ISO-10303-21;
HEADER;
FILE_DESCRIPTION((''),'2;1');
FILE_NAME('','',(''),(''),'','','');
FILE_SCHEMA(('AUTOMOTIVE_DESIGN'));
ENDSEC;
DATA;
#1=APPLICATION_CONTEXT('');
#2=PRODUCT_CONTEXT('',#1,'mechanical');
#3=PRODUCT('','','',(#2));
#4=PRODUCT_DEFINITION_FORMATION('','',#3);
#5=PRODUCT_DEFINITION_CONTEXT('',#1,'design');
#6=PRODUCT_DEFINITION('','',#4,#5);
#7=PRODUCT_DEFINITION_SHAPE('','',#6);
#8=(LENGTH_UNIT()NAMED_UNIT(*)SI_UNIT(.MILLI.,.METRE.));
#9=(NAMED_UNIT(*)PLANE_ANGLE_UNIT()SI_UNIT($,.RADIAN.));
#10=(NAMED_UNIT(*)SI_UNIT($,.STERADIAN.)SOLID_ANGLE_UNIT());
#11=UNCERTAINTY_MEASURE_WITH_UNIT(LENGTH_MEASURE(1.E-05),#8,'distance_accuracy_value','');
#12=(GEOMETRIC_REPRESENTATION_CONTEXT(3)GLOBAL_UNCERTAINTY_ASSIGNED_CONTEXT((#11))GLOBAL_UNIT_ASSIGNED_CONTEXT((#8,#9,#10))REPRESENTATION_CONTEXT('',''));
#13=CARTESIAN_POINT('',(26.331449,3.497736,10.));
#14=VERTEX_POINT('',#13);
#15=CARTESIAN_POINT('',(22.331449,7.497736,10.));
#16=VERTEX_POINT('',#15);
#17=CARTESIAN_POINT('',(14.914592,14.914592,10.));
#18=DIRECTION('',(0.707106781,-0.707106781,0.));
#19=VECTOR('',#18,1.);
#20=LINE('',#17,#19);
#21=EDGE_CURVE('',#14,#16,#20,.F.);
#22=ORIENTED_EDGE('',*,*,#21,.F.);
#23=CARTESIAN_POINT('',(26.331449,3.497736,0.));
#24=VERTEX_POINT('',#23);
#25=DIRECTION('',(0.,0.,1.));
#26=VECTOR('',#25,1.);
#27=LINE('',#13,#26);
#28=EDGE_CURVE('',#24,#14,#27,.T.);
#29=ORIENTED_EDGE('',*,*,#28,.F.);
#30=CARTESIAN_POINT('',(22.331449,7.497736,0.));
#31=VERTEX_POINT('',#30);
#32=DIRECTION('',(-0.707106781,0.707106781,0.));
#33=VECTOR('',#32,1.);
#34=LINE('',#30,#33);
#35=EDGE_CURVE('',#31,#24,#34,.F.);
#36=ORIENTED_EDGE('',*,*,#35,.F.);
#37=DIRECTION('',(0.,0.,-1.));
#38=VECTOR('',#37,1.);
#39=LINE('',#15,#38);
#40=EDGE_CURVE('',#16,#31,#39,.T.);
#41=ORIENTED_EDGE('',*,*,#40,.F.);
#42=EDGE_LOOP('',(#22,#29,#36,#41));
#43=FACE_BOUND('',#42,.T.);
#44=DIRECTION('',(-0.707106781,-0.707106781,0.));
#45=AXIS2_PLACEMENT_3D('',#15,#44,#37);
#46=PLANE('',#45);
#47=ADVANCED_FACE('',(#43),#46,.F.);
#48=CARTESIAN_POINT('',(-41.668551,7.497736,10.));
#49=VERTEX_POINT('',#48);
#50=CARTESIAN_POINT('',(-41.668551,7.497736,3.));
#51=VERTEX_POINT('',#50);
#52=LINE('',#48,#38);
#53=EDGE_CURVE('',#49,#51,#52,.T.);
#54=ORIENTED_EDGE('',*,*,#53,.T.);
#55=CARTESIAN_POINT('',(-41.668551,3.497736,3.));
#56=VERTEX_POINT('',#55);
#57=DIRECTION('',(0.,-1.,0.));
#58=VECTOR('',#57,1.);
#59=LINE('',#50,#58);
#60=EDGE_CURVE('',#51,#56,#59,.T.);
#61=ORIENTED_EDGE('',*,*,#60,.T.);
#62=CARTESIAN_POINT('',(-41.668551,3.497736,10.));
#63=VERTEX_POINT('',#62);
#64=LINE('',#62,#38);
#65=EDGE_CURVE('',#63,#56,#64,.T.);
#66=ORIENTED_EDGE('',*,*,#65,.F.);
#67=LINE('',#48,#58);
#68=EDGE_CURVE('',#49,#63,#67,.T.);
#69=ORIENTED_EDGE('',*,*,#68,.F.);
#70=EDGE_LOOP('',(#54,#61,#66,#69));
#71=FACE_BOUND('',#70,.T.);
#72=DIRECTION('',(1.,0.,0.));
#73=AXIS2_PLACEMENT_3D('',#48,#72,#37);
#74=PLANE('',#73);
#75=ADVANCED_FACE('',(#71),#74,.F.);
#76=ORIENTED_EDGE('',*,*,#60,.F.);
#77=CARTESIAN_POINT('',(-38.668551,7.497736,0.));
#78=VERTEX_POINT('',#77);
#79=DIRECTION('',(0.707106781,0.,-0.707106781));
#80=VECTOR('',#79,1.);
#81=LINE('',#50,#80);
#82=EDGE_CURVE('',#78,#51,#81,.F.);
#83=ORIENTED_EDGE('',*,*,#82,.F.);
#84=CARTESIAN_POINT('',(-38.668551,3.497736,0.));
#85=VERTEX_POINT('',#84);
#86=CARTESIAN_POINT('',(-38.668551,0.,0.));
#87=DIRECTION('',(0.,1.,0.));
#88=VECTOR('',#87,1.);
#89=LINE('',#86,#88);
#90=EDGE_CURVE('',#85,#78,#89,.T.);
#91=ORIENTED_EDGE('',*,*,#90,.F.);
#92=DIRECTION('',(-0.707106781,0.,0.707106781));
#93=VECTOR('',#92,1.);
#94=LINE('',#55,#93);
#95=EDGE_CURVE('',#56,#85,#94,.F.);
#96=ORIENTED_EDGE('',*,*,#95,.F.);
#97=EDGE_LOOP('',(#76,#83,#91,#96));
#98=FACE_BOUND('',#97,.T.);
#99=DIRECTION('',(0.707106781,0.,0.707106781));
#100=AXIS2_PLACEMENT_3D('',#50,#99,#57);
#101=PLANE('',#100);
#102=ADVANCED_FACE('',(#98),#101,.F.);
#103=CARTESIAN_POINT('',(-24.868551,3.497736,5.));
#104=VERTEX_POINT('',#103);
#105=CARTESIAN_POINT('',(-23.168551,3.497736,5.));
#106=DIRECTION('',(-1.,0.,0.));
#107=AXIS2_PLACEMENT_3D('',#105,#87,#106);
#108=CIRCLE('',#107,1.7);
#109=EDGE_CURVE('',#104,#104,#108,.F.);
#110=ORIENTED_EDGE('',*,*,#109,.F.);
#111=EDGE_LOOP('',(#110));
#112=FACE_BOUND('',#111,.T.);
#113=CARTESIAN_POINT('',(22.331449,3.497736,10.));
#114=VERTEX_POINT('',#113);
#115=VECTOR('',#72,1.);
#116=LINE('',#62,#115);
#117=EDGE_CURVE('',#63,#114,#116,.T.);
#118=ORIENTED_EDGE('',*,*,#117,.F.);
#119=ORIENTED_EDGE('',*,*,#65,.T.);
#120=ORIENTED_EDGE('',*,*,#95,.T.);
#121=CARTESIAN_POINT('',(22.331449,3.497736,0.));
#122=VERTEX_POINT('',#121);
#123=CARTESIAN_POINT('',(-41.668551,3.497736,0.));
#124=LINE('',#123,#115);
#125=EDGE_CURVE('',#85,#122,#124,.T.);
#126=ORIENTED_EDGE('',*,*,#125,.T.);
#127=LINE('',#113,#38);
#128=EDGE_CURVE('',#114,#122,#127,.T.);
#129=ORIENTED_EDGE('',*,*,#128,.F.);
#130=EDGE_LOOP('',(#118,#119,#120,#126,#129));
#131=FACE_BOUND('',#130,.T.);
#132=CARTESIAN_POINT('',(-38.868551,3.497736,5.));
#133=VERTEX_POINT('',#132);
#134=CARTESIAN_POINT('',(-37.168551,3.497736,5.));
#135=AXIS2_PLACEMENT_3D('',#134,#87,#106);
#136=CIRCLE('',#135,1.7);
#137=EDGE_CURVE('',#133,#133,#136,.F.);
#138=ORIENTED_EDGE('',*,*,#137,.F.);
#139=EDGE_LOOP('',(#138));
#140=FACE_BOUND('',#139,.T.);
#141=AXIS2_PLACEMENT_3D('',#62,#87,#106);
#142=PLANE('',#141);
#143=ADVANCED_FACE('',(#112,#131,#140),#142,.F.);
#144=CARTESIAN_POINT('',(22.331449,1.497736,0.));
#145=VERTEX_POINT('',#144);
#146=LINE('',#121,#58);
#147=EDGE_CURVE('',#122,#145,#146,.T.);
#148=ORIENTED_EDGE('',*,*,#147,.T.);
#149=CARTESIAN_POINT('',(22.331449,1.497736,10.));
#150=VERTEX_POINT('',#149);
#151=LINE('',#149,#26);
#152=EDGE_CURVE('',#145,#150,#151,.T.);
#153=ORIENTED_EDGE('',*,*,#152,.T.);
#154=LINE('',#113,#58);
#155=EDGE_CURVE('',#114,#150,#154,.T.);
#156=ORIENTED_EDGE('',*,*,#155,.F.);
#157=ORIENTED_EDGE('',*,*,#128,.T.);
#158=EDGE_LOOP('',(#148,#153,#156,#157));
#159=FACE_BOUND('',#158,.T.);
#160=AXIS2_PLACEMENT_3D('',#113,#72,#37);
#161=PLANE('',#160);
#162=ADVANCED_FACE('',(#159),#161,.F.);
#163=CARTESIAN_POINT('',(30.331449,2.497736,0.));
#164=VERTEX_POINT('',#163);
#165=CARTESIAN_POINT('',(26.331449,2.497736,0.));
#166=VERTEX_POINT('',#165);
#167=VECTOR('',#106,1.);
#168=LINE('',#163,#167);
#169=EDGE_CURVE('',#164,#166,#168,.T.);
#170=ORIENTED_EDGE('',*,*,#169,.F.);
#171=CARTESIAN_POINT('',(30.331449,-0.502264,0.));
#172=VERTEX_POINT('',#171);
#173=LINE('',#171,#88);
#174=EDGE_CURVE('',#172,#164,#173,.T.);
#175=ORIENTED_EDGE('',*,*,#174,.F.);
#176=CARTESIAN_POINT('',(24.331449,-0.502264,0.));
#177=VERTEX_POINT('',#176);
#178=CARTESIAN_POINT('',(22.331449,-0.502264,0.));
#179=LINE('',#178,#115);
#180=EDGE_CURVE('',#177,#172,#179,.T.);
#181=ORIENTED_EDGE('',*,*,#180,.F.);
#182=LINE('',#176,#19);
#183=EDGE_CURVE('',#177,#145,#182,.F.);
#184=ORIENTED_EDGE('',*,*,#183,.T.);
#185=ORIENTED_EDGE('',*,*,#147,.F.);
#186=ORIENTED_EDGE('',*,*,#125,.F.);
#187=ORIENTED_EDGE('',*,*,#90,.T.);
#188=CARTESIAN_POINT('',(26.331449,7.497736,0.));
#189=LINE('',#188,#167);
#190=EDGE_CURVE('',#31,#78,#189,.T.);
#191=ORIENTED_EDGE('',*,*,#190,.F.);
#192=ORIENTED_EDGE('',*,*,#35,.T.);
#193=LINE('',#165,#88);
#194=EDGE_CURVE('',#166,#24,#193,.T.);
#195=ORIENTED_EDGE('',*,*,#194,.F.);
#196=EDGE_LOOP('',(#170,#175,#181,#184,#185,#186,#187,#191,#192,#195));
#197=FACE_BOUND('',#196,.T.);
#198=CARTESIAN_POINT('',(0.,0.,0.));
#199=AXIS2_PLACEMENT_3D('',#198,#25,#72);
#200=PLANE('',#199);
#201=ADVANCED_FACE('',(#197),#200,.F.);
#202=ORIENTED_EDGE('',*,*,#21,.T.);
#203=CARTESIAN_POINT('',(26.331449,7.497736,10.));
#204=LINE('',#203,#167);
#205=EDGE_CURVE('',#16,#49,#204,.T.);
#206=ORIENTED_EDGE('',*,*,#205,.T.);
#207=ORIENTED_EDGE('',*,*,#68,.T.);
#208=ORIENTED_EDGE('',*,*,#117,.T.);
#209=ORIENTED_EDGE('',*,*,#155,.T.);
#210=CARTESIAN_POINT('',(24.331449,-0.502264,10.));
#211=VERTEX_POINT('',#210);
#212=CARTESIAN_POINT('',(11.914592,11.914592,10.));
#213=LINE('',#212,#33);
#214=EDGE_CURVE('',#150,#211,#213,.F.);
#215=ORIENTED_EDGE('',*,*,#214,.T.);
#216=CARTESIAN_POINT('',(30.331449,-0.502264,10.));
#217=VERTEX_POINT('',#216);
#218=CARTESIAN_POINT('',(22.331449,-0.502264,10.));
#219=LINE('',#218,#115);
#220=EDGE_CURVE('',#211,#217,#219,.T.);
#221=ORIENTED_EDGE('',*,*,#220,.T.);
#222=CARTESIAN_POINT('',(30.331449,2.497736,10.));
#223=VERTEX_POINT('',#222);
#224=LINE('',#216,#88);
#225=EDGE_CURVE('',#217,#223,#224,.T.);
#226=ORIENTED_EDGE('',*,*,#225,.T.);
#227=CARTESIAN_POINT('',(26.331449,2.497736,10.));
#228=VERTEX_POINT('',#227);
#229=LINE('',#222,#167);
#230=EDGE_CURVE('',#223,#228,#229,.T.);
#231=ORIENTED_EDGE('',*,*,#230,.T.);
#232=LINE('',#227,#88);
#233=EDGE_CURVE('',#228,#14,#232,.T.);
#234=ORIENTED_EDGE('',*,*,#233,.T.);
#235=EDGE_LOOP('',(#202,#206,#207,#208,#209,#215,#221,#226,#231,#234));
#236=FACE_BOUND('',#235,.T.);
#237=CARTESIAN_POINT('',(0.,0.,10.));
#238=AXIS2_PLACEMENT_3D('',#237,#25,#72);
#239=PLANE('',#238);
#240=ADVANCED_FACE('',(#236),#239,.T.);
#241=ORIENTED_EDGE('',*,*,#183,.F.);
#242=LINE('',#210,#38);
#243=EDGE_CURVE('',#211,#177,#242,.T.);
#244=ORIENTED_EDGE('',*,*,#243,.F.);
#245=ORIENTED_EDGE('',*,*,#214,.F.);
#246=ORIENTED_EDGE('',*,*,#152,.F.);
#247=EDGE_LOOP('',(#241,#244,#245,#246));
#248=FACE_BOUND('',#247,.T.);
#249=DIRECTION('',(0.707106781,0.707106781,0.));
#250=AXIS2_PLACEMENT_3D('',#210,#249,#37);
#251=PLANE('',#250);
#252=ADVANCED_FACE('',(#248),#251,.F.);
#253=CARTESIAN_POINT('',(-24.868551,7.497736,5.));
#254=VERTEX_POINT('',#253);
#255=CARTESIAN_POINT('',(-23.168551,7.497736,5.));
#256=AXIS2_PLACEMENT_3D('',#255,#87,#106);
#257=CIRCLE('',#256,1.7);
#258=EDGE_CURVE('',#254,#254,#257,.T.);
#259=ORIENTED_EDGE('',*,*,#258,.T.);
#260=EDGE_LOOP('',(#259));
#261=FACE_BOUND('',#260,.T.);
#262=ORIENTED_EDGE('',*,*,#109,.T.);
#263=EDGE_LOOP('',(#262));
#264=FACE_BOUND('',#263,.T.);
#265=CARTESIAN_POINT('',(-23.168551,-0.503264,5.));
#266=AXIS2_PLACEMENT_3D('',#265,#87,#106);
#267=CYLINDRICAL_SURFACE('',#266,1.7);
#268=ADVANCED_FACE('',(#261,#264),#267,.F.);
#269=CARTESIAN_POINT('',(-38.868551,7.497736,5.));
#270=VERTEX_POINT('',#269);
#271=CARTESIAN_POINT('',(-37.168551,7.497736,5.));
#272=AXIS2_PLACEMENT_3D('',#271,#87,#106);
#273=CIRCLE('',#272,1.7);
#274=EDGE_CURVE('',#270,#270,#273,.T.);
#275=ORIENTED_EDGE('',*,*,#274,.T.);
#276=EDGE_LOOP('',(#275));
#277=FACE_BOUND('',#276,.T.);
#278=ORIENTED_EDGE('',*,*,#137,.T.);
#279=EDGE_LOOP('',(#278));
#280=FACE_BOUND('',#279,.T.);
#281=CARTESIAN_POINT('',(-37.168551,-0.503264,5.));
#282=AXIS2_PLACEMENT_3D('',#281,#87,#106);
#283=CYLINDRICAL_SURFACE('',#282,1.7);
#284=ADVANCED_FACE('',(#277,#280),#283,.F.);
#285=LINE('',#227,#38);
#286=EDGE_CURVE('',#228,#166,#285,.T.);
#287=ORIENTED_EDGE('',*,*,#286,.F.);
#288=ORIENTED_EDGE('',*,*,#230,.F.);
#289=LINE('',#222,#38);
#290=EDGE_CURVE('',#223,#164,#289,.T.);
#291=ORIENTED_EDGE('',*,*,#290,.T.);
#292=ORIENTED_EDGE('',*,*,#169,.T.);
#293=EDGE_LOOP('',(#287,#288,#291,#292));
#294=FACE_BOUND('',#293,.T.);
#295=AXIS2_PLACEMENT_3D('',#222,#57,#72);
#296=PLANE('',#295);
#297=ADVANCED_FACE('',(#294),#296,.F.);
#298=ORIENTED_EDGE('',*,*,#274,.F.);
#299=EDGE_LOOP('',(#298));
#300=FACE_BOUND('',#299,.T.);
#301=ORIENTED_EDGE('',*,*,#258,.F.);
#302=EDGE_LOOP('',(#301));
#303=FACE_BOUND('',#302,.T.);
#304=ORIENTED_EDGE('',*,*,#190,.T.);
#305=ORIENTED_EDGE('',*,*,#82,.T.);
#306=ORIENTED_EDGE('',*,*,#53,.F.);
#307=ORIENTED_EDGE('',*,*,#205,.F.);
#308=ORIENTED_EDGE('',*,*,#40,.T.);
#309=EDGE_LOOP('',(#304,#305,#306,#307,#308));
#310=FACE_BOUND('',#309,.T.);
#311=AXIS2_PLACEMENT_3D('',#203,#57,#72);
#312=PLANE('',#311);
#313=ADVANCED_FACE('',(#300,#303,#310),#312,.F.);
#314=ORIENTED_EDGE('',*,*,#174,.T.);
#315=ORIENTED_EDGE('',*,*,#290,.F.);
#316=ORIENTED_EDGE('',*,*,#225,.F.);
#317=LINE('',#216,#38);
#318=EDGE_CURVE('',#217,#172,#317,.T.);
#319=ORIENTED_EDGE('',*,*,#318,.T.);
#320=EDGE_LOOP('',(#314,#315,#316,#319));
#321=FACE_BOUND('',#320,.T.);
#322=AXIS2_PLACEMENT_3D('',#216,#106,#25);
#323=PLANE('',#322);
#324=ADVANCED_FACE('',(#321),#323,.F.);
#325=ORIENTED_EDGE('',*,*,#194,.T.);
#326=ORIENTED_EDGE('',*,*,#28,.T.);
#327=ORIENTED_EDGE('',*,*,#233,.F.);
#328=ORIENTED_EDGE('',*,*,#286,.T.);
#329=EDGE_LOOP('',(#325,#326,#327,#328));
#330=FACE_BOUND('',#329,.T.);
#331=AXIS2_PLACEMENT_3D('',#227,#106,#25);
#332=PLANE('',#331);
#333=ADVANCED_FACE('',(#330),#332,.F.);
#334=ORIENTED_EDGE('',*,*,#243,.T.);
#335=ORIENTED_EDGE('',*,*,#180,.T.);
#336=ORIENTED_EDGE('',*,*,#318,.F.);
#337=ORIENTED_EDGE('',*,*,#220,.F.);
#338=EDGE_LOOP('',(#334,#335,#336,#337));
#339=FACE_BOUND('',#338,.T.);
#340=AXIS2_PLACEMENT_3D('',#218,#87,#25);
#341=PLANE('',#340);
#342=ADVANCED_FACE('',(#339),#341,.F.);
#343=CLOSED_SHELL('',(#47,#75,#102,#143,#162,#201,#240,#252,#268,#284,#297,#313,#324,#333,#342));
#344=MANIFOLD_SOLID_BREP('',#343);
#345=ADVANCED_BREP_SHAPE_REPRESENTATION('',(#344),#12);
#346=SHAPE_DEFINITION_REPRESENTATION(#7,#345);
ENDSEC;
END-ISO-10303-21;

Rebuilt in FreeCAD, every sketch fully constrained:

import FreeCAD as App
import Part
import Sketcher


def edges_at(feature, points):
    """Names of the edges that pass closest to the given points."""
    edges = feature.Shape.Edges
    near = lambda p: min(range(len(edges)), key=lambda i: edges[i].distToShape(Part.Vertex(*p))[0])
    return sorted({f"Edge{near(p) + 1}" for p in points})


def add_polygon(sketch, points):
    """Adds a closed chain of lines whose ends are joined by coincident constraints."""
    first, n = sketch.GeometryCount, len(points)
    for a, b in zip(points, points[1:] + points[:1]):
        sketch.addGeometry(Part.LineSegment(App.Vector(*a, 0), App.Vector(*b, 0)), False)
    for i in range(n):
        sketch.addConstraint(Sketcher.Constraint("Coincident", first + i, 2, first + (i + 1) % n, 1))

doc = App.newDocument("Part")
params = doc.addObject("Spreadsheet::Sheet", "Params")
for row, (alias, value) in enumerate([
    ("sketch1_width", "64 mm"),
    ("sketch1_width2", "8 mm"),
    ("sketch1_width3", "4 mm"),
    ("sketch1_height", "3 mm"),
    ("pad1_length", "10 mm"),
    ("chamfer_size", "3 mm"),
    ("chamfer2_size", "4 mm"),
    ("chamfer3_size", "2 mm"),
    ("sketch2_diameter", "3.4 mm"),
    ("sketch3_diameter", "3.4 mm"),
], start=1):
    params.set(f"A{row}", alias)
    params.set(f"B{row}", "=" + value)
    params.setAlias(f"B{row}", alias)

body = doc.addObject("PartDesign::Body", "Body")

sketch1 = doc.addObject("Sketcher::SketchObject", "Sketch")
body.addObject(sketch1)
sketch1.AttachmentSupport = (doc.XY_Plane, [""])
sketch1.MapMode = "FlatFace"
add_polygon(sketch1, [(-41.668551, 7.497736), (-41.668551, 3.497736), (22.331449, 3.497736), (22.331449, -0.502264), (30.331449, -0.502264), (30.331449, 2.497736), (26.331449, 2.497736), (26.331449, 7.497736)])
sketch1.addConstraint([
    Sketcher.Constraint("Vertical", 0),
    Sketcher.Constraint("Horizontal", 1),
    Sketcher.Constraint("Vertical", 2),
    Sketcher.Constraint("Horizontal", 3),
    Sketcher.Constraint("Vertical", 4),
    Sketcher.Constraint("Horizontal", 5),
    Sketcher.Constraint("Vertical", 6),
    Sketcher.Constraint("Horizontal", 7),
    Sketcher.Constraint("Equal", 5, 0),
    Sketcher.Constraint("Equal", 0, 2),
    Sketcher.Constraint("DistanceX", 1, 1, 1, 2, 64.0),
    Sketcher.Constraint("DistanceX", 3, 1, 3, 2, 8.0),
    Sketcher.Constraint("DistanceX", 5, 2, 5, 1, 4.0),
    Sketcher.Constraint("DistanceY", 4, 1, 4, 2, 3.0),
    Sketcher.Constraint("DistanceX", 0, 2, -1, 1, 41.668551),
    Sketcher.Constraint("DistanceY", -1, 1, 0, 2, 3.497736),
])
sketch1.setExpression("Constraints[18]", "Params.sketch1_width")
sketch1.setExpression("Constraints[19]", "Params.sketch1_width2")
sketch1.setExpression("Constraints[20]", "Params.sketch1_width3")
sketch1.setExpression("Constraints[21]", "Params.sketch1_height")
pad1 = doc.addObject("PartDesign::Pad", "Pad")
body.addObject(pad1)
pad1.Profile = sketch1
pad1.setExpression("Length", "Params.pad1_length")
doc.recompute()

chamfer = doc.addObject("PartDesign::Chamfer", "Chamfer")
body.addObject(chamfer)
chamfer.Base = (pad1, edges_at(pad1, [(-41.669, 5.498, 0)]))
chamfer.setExpression("Size", "Params.chamfer_size")
doc.recompute()

chamfer2 = doc.addObject("PartDesign::Chamfer", "Chamfer001")
body.addObject(chamfer2)
chamfer2.Base = (chamfer, edges_at(chamfer, [(26.331, 7.498, 5)]))
chamfer2.setExpression("Size", "Params.chamfer2_size")
doc.recompute()

chamfer3 = doc.addObject("PartDesign::Chamfer", "Chamfer002")
body.addObject(chamfer3)
chamfer3.Base = (chamfer2, edges_at(chamfer2, [(22.331, -0.502, 5)]))
chamfer3.setExpression("Size", "Params.chamfer3_size")

sketch2 = doc.addObject("Sketcher::SketchObject", "Sketch001")
body.addObject(sketch2)
sketch2.AttachmentSupport = (doc.XZ_Plane, [""])
sketch2.MapMode = "FlatFace"
sketch2.AttachmentOffset = App.Placement(App.Vector(0, 0, -7.497736), App.Rotation())
sketch2.addGeometry(Part.Circle(App.Vector(-37.168551, 5, 0), App.Vector(0, 0, 1), 1.7), False)
sketch2.addConstraint([
    Sketcher.Constraint("Diameter", 0, 3.4),
    Sketcher.Constraint("DistanceY", -1, 1, 0, 3, 5.0),
    Sketcher.Constraint("DistanceX", 0, 3, -1, 1, 37.168551),
])
sketch2.setExpression("Constraints[0]", "Params.sketch2_diameter")
pocket1 = doc.addObject("PartDesign::Pocket", "Pocket")
body.addObject(pocket1)
pocket1.Profile = sketch2
pocket1.Type = "UpToFirst"
pocket1.Reversed = True

sketch3 = doc.addObject("Sketcher::SketchObject", "Sketch002")
body.addObject(sketch3)
sketch3.AttachmentSupport = (doc.XZ_Plane, [""])
sketch3.MapMode = "FlatFace"
sketch3.AttachmentOffset = App.Placement(App.Vector(0, 0, -7.497736), App.Rotation())
sketch3.addGeometry(Part.Circle(App.Vector(-23.168551, 5, 0), App.Vector(0, 0, 1), 1.7), False)
sketch3.addConstraint([
    Sketcher.Constraint("Diameter", 0, 3.4),
    Sketcher.Constraint("DistanceY", -1, 1, 0, 3, 5.0),
    Sketcher.Constraint("DistanceX", 0, 3, -1, 1, 23.168551),
])
sketch3.setExpression("Constraints[0]", "Params.sketch3_diameter")
pocket2 = doc.addObject("PartDesign::Pocket", "Pocket001")
body.addObject(pocket2)
pocket2.Profile = sketch3
pocket2.Type = "UpToFirst"
pocket2.Reversed = True

doc.recompute()
